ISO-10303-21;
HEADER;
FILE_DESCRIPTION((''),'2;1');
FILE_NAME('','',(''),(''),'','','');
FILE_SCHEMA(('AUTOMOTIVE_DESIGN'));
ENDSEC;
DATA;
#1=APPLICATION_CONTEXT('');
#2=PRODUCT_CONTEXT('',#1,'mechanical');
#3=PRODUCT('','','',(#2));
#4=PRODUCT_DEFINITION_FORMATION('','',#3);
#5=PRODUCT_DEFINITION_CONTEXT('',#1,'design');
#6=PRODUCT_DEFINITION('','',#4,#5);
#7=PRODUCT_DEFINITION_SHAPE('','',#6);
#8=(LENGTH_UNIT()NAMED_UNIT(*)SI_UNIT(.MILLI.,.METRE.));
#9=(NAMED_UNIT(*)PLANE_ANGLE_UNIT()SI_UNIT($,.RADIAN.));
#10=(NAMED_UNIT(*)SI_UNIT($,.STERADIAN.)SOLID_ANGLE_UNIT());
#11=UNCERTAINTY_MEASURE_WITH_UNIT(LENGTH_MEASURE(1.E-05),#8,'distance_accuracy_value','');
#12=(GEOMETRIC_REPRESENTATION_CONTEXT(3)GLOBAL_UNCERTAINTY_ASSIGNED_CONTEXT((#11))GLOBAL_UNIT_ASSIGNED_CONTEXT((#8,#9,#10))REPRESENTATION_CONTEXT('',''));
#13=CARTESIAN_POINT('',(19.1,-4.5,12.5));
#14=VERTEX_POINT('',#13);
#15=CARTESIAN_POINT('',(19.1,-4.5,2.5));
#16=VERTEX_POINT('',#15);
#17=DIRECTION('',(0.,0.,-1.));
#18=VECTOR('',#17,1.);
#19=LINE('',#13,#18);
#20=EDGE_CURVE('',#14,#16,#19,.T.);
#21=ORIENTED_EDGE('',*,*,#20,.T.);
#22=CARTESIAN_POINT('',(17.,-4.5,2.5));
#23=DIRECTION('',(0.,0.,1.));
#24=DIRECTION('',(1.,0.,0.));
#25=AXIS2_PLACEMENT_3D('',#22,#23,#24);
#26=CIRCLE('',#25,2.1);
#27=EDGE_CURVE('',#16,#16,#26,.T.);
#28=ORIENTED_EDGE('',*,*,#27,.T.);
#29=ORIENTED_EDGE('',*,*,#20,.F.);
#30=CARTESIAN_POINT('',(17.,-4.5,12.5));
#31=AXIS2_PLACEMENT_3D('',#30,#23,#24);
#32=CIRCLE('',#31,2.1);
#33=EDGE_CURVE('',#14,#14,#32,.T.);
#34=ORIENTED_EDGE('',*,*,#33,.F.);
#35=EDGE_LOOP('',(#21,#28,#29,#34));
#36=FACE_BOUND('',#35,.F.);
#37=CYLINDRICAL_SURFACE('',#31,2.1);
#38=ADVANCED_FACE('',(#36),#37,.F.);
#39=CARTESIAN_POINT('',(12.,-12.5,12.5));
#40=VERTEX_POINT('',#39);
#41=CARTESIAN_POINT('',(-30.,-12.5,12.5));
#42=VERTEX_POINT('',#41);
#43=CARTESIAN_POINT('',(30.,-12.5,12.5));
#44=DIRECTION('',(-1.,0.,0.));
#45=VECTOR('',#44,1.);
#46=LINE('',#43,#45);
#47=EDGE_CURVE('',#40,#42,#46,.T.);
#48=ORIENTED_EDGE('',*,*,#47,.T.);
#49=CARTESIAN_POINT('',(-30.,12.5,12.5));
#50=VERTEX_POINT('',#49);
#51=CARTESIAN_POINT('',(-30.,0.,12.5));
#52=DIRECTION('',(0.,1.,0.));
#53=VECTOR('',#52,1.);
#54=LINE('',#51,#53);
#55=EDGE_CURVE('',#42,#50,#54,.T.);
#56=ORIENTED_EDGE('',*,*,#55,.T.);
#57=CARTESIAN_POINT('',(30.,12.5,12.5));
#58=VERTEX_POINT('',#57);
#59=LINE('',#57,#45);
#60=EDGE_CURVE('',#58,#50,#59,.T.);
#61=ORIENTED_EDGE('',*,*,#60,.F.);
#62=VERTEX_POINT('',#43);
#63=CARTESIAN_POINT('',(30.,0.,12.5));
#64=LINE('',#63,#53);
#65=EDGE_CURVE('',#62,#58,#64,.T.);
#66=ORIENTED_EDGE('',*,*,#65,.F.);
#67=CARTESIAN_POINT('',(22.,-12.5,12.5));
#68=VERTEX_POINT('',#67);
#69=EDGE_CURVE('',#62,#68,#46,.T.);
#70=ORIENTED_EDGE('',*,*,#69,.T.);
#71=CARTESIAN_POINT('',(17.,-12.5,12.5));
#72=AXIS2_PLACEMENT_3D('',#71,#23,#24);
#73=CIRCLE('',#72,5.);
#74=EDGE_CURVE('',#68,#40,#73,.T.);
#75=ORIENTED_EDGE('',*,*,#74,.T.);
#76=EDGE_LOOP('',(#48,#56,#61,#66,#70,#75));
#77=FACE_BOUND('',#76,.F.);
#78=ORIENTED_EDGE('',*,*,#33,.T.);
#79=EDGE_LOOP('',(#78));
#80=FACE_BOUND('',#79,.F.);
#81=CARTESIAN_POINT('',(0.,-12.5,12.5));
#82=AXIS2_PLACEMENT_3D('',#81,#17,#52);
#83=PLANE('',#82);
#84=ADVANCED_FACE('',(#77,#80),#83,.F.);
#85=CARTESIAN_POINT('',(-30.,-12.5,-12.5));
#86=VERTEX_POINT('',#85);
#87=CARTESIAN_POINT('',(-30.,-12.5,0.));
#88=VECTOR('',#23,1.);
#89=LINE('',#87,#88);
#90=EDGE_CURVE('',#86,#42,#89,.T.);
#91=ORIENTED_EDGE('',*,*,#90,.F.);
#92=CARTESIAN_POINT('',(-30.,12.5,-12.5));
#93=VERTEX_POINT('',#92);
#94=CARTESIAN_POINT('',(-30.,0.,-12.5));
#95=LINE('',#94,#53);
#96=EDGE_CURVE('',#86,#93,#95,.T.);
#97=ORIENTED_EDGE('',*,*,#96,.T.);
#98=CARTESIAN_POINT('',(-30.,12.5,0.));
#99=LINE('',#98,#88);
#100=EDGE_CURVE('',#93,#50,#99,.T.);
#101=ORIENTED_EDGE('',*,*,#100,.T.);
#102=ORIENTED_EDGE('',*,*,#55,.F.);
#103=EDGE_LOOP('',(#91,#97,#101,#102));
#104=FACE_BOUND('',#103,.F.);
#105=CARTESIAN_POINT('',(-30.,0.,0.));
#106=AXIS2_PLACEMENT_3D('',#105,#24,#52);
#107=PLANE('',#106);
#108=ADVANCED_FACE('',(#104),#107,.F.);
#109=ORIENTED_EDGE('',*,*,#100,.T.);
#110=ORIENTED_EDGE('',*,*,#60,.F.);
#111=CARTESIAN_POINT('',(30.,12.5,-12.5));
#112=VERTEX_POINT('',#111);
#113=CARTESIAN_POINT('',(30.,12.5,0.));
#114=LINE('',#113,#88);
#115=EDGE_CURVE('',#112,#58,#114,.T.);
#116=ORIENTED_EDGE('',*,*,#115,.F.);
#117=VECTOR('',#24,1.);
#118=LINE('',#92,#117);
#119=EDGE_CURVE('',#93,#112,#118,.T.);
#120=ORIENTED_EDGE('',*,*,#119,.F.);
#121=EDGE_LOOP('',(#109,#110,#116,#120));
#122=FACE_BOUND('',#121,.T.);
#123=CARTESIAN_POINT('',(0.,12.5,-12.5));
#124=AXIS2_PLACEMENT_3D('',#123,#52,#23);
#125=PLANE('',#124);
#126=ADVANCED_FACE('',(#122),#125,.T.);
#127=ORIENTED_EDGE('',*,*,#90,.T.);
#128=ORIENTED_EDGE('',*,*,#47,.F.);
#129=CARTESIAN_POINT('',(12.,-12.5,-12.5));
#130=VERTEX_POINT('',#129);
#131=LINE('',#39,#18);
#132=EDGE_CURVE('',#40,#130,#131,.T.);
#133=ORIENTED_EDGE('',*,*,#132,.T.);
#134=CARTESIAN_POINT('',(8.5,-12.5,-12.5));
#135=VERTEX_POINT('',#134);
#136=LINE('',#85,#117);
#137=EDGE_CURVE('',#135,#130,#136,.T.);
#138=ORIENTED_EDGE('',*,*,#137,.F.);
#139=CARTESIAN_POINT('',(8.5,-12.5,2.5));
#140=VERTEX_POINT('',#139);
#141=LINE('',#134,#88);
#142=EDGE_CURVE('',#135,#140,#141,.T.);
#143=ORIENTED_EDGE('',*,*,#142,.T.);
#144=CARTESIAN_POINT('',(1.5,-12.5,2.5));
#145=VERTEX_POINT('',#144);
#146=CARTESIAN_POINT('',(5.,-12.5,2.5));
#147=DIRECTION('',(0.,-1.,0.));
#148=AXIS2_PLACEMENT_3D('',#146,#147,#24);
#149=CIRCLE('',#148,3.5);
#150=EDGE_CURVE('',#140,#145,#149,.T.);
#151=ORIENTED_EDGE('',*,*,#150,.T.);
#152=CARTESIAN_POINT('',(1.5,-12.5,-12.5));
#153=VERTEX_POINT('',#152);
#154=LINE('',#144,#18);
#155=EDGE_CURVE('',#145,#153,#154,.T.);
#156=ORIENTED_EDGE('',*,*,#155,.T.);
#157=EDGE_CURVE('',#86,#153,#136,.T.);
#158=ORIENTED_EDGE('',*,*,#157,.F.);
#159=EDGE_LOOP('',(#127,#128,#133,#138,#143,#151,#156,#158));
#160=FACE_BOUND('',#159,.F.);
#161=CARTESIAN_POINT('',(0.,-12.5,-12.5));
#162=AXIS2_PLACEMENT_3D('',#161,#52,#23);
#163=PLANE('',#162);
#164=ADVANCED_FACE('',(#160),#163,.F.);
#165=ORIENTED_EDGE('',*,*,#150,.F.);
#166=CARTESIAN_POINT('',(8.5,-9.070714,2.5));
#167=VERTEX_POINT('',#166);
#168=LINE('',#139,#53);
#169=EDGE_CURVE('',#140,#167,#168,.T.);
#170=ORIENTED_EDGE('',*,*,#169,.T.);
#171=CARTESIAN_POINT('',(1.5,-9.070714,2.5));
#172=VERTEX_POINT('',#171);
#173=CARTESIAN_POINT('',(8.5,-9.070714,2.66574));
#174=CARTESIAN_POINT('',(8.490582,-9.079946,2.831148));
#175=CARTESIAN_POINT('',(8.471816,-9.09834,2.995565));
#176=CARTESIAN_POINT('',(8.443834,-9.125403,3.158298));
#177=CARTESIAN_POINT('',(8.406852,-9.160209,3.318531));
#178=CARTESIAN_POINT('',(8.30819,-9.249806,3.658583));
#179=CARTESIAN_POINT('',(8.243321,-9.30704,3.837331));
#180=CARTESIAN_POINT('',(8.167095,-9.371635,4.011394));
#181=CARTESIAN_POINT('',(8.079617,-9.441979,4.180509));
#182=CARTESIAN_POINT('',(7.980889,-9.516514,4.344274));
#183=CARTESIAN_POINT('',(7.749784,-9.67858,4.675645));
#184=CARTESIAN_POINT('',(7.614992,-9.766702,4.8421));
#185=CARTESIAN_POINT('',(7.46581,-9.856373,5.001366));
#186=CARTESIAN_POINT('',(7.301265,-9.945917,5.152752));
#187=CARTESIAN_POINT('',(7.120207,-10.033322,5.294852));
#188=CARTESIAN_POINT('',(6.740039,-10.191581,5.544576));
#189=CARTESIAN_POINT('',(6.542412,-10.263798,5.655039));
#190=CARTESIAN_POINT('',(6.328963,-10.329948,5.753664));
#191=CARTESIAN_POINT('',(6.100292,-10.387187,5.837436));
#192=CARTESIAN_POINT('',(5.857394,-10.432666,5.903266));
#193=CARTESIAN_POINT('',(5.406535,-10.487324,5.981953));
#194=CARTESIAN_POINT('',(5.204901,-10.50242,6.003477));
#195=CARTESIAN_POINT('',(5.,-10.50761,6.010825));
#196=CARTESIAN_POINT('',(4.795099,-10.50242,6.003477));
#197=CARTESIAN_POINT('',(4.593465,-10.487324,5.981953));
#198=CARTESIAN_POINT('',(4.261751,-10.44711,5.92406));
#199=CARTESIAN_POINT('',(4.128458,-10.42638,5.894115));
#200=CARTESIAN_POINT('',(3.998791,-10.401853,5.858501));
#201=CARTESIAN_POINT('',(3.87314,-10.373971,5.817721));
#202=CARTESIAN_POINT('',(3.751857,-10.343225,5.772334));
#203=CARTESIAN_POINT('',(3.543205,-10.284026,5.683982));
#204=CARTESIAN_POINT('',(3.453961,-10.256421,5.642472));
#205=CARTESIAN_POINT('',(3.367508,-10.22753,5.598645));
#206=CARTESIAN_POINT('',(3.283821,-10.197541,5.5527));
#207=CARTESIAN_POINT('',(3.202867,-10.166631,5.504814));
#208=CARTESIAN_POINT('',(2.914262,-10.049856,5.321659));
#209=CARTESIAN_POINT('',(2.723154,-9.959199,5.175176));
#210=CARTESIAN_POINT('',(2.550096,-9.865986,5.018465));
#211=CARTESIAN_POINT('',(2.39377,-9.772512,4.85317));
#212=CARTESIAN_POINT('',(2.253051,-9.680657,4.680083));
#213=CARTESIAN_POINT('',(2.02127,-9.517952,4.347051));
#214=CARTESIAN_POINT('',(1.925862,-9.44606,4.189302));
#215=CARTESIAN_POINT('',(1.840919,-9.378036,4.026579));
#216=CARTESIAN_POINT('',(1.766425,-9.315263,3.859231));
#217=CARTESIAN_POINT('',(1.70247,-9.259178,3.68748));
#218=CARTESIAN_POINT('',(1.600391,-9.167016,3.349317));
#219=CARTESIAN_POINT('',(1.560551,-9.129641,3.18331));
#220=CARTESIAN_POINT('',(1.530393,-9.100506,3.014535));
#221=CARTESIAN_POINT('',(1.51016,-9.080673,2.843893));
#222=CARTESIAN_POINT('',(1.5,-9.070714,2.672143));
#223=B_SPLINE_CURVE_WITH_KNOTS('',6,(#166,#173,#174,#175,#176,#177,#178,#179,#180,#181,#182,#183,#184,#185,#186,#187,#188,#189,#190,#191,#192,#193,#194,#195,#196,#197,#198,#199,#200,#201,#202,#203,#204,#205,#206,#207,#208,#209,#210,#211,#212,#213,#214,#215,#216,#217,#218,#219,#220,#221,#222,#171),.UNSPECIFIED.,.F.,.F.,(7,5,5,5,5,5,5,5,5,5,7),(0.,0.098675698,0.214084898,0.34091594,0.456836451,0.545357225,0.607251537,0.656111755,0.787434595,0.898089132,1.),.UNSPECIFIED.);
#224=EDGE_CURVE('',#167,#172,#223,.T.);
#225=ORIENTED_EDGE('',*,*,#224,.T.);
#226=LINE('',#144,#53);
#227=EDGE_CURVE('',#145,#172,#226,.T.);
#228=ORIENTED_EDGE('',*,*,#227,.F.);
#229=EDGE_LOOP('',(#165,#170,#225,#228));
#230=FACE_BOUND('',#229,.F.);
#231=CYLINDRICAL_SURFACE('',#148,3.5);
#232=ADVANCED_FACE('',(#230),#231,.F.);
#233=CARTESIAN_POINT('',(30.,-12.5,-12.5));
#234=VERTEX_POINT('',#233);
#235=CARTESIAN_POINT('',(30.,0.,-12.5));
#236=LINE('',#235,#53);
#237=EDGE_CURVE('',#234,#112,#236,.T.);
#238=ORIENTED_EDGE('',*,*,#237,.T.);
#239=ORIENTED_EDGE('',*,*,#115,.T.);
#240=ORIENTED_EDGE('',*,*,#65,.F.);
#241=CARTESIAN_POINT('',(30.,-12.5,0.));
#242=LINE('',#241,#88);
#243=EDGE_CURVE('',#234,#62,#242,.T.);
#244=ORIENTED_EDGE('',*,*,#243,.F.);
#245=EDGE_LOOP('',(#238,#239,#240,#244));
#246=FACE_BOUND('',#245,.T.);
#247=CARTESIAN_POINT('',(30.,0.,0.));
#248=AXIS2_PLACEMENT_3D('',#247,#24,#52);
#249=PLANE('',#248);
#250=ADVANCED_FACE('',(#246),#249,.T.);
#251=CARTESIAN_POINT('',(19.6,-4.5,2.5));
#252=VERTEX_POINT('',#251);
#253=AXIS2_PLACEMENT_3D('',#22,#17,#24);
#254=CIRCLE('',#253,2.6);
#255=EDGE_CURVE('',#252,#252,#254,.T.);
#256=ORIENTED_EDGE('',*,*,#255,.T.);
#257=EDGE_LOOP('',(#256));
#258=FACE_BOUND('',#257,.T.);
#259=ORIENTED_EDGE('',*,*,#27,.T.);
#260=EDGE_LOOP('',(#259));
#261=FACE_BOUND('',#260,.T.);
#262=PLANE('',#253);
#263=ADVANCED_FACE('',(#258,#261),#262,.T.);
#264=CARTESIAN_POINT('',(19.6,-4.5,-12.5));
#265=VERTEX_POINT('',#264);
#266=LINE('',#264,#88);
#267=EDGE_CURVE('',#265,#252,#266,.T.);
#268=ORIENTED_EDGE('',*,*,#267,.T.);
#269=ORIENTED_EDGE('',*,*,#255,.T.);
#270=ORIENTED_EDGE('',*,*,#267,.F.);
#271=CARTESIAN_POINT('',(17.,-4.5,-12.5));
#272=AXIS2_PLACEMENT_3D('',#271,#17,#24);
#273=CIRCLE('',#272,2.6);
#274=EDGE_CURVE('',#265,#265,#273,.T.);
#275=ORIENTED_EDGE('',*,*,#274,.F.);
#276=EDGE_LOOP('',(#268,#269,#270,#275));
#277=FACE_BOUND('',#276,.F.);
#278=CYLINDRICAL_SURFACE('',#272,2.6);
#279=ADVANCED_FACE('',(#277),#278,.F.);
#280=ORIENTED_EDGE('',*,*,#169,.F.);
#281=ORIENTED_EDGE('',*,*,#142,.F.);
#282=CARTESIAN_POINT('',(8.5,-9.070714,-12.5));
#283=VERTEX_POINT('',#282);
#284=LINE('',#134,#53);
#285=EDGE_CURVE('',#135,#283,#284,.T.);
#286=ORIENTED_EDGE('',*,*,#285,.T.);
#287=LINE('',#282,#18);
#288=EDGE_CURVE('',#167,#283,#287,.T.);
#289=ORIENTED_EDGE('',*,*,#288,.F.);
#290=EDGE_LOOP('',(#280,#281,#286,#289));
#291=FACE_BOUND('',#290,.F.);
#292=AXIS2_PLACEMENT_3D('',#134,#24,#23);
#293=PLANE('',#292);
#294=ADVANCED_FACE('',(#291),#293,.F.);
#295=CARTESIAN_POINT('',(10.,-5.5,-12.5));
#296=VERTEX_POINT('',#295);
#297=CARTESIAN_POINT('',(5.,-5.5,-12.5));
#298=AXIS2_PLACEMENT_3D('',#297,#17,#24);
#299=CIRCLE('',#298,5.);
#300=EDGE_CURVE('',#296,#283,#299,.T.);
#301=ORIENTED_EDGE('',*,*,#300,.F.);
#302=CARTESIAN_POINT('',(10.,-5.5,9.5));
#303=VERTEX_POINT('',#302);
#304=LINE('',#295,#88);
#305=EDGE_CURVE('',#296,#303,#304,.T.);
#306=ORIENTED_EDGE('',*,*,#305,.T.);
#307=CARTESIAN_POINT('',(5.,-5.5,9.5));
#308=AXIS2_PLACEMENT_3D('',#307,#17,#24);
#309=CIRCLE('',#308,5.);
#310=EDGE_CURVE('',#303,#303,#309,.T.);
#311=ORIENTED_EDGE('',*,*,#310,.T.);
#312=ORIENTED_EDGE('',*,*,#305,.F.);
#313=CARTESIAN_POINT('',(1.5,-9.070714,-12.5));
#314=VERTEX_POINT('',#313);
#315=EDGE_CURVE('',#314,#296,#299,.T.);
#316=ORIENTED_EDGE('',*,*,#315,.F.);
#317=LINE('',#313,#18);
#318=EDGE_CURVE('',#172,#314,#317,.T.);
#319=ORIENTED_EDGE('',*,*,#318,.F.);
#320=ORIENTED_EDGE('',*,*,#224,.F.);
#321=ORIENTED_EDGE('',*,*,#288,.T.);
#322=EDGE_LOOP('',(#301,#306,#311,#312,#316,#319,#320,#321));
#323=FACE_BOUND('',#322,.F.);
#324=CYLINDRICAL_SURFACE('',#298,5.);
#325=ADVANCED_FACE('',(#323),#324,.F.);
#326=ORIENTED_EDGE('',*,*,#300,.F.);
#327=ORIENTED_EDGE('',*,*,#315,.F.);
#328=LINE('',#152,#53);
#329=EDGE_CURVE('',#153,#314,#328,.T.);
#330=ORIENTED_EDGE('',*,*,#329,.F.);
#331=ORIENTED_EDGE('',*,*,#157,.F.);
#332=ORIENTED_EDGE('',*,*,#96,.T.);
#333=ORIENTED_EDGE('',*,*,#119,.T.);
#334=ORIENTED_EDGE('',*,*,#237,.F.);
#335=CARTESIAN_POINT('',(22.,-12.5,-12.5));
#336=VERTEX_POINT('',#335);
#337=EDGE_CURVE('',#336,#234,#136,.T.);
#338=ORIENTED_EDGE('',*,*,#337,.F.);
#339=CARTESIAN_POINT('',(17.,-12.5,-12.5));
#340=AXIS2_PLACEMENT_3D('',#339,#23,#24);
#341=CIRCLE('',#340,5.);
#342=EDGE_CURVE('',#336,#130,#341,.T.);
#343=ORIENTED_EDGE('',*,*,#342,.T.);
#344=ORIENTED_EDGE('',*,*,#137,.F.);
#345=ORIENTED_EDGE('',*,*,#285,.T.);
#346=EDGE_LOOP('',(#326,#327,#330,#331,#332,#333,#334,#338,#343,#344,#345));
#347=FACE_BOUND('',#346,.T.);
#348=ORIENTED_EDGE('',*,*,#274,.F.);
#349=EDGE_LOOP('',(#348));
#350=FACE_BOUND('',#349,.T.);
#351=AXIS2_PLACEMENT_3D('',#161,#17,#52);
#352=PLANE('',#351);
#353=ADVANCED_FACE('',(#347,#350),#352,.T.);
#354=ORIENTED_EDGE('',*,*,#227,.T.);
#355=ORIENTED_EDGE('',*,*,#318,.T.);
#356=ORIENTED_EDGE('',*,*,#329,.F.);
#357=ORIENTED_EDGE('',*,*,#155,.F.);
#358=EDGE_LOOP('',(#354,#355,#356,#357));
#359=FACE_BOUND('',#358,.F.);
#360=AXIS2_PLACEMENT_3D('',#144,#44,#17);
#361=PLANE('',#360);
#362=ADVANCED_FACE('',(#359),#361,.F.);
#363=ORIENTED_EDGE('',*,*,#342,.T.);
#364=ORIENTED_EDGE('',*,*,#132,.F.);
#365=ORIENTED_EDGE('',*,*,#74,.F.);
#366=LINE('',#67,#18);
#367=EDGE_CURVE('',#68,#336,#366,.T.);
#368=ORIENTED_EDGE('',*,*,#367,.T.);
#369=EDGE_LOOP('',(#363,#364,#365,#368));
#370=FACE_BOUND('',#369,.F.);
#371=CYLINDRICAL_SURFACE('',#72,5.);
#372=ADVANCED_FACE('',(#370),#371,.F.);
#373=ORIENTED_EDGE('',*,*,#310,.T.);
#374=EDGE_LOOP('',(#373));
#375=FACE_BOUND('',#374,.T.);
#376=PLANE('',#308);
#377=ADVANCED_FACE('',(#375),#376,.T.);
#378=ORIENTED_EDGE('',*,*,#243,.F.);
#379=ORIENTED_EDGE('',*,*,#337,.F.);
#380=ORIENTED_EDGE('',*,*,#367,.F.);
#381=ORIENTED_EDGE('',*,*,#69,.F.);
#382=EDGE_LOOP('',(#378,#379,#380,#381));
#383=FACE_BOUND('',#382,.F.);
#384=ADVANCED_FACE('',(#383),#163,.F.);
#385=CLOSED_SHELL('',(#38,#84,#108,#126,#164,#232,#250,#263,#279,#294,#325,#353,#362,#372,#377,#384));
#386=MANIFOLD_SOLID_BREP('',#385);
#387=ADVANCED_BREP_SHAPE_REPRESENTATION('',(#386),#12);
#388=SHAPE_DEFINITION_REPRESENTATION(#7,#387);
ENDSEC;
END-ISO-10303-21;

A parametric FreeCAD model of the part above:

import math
import FreeCAD as App
import Part
import Sketcher

doc = App.newDocument("Part")
params = doc.addObject("Spreadsheet::Sheet", "Params")
for row, (alias, value) in enumerate([
    ("sketch1_width", "25 mm"),
    ("pad1_length", "60 mm"),
    ("sketch2_radius", "5 mm"),
    ("sketch3_diameter", "4.2 mm"),
    ("sketch4_diameter", "10 mm"),
    ("pocket3_length", "22 mm"),
    ("sketch5_radius", "3.5 mm"),
    ("sketch5_height", "15 mm"),
    ("pocket4_length", "7 mm"),
    ("sketch6_diameter", "5.2 mm"),
    ("pocket5_length", "15 mm"),
], start=1):
    params.set(f"A{row}", alias)
    params.set(f"B{row}", "=" + value)
    params.setAlias(f"B{row}", alias)

body = doc.addObject("PartDesign::Body", "Body")

sketch1 = body.newObject("Sketcher::SketchObject", "Sketch")
sketch1.AttachmentSupport = (doc.getObject("YZ_Plane"), [""])
sketch1.MapMode = "FlatFace"
sketch1.addGeometry(Part.LineSegment(App.Vector(-12, 12, 0), App.Vector(-12, -12, 0)), False)
sketch1.addGeometry(Part.LineSegment(App.Vector(-12, -12, 0), App.Vector(12, -12, 0)), False)
sketch1.addGeometry(Part.LineSegment(App.Vector(12, -12, 0), App.Vector(12, 12, 0)), False)
sketch1.addGeometry(Part.LineSegment(App.Vector(12, 12, 0), App.Vector(-12, 12, 0)), False)
sketch1.addConstraint(Sketcher.Constraint("Coincident", 0, 2, 1, 1))
sketch1.addConstraint(Sketcher.Constraint("Coincident", 1, 2, 2, 1))
sketch1.addConstraint(Sketcher.Constraint("Coincident", 2, 2, 3, 1))
sketch1.addConstraint(Sketcher.Constraint("Coincident", 3, 2, 0, 1))
sketch1.addConstraint(Sketcher.Constraint("Vertical", 0))
sketch1.addConstraint(Sketcher.Constraint("Horizontal", 1))
sketch1.addConstraint(Sketcher.Constraint("Vertical", 2))
sketch1.addConstraint(Sketcher.Constraint("Horizontal", 3))
sketch1.addConstraint(Sketcher.Constraint("Symmetric", 0, 2, 2, 2, -1, 1))
sketch1.addConstraint(Sketcher.Constraint("Equal", 3, 0))
sketch1.addConstraint(Sketcher.Constraint("DistanceX", 1, 1, 1, 2, 25.0))
sketch1.setExpression("Constraints[10]", "Params.sketch1_width")
pad1 = body.newObject("PartDesign::Pad", "Pad")
pad1.Profile = sketch1
pad1.setExpression("Length", "Params.pad1_length")
pad1.Midplane = True

sketch2 = body.newObject("Sketcher::SketchObject", "Sketch001")
sketch2.AttachmentSupport = (doc.getObject("XY_Plane"), [""])
sketch2.MapMode = "FlatFace"
sketch2.AttachmentOffset = App.Placement(App.Vector(0, 0, 12.5), App.Rotation())
sketch2.addGeometry(Part.LineSegment(App.Vector(12, -12, 0), App.Vector(22, -12, 0)), False)
sketch2.addGeometry(Part.ArcOfCircle(Part.Circle(App.Vector(17, -12, 0), App.Vector(0, 0, 1), 5), math.radians(0), math.radians(180)), False)
sketch2.addConstraint(Sketcher.Constraint("Coincident", 0, 1, 1, 2))
sketch2.addConstraint(Sketcher.Constraint("Coincident", 1, 1, 0, 2))
sketch2.addConstraint(Sketcher.Constraint("Horizontal", 0))
sketch2.addConstraint(Sketcher.Constraint("Horizontal", 1, 3, 0, 1))
sketch2.addConstraint(Sketcher.Constraint("Radius", 1, 5.0))
sketch2.addConstraint(Sketcher.Constraint("DistanceX", -1, 1, 1, 3, 17.0))
sketch2.addConstraint(Sketcher.Constraint("DistanceY", 1, 3, -1, 1, 12.5))
sketch2.setExpression("Constraints[4]", "Params.sketch2_radius")
pocket1 = body.newObject("PartDesign::Pocket", "Pocket")
pocket1.Profile = sketch2
pocket1.Type = "ThroughAll"

sketch3 = body.newObject("Sketcher::SketchObject", "Sketch002")
sketch3.AttachmentSupport = (doc.getObject("XY_Plane"), [""])
sketch3.MapMode = "FlatFace"
sketch3.AttachmentOffset = App.Placement(App.Vector(0, 0, 12.5), App.Rotation())
sketch3.addGeometry(Part.Circle(App.Vector(17, -4.5, 0), App.Vector(0, 0, 1), 2.1), False)
sketch3.addConstraint(Sketcher.Constraint("Diameter", 0, 4.2))
sketch3.addConstraint(Sketcher.Constraint("DistanceX", -1, 1, 0, 3, 17.0))
sketch3.addConstraint(Sketcher.Constraint("DistanceY", 0, 3, -1, 1, 4.5))
sketch3.setExpression("Constraints[0]", "Params.sketch3_diameter")
pocket2 = body.newObject("PartDesign::Pocket", "Pocket001")
pocket2.Profile = sketch3
pocket2.Type = "ThroughAll"

sketch4 = body.newObject("Sketcher::SketchObject", "Sketch003")
sketch4.AttachmentSupport = (doc.getObject("XY_Plane"), [""])
sketch4.MapMode = "FlatFace"
sketch4.AttachmentOffset = App.Placement(App.Vector(0, 0, -12.5), App.Rotation())
sketch4.addGeometry(Part.Circle(App.Vector(5, -6, 0), App.Vector(0, 0, 1), 5), False)
sketch4.addConstraint(Sketcher.Constraint("Diameter", 0, 10.0))
sketch4.addConstraint(Sketcher.Constraint("DistanceX", -1, 1, 0, 3, 5.0))
sketch4.addConstraint(Sketcher.Constraint("DistanceY", 0, 3, -1, 1, 5.5))
sketch4.setExpression("Constraints[0]", "Params.sketch4_diameter")
pocket3 = body.newObject("PartDesign::Pocket", "Pocket002")
pocket3.Profile = sketch4
pocket3.setExpression("Length", "Params.pocket3_length")
pocket3.Reversed = True

sketch5 = body.newObject("Sketcher::SketchObject", "Sketch004")
sketch5.AttachmentSupport = (doc.getObject("XZ_Plane"), [""])
sketch5.MapMode = "FlatFace"
sketch5.AttachmentOffset = App.Placement(App.Vector(0, 0, 12.5), App.Rotation())
sketch5.addGeometry(Part.LineSegment(App.Vector(1.5, -12.5, 0), App.Vector(8.5, -12.5, 0)), False)
sketch5.addGeometry(Part.LineSegment(App.Vector(8.5, -12.5, 0), App.Vector(8.5, 2.5, 0)), False)
sketch5.addGeometry(Part.ArcOfCircle(Part.Circle(App.Vector(5, 2.5, 0), App.Vector(0, 0, 1), 3.5), math.radians(0), math.radians(180)), False)
sketch5.addGeometry(Part.LineSegment(App.Vector(1.5, 2.5, 0), App.Vector(1.5, -12.5, 0)), False)
sketch5.addConstraint(Sketcher.Constraint("Coincident", 0, 2, 1, 1))
sketch5.addConstraint(Sketcher.Constraint("Tangent", 1, 2, 2, 1))
sketch5.addConstraint(Sketcher.Constraint("Tangent", 2, 2, 3, 1))
sketch5.addConstraint(Sketcher.Constraint("Coincident", 3, 2, 0, 1))
sketch5.addConstraint(Sketcher.Constraint("Horizontal", 0))
sketch5.addConstraint(Sketcher.Constraint("Vertical", 1))
sketch5.addConstraint(Sketcher.Constraint("Vertical", 3))
sketch5.addConstraint(Sketcher.Constraint("Radius", 2, 3.5))
sketch5.addConstraint(Sketcher.Constraint("DistanceY", 1, 1, 1, 2, 15.0))
sketch5.addConstraint(Sketcher.Constraint("DistanceX", -1, 1, 2, 3, 5.0))
sketch5.addConstraint(Sketcher.Constraint("DistanceY", -1, 1, 2, 3, 2.5))
sketch5.setExpression("Constraints[7]", "Params.sketch5_radius")
sketch5.setExpression("Constraints[8]", "Params.sketch5_height")
pocket4 = body.newObject("PartDesign::Pocket", "Pocket003")
pocket4.Profile = sketch5
pocket4.setExpression("Length", "Params.pocket4_length")

sketch6 = body.newObject("Sketcher::SketchObject", "Sketch005")
sketch6.AttachmentSupport = (doc.getObject("XY_Plane"), [""])
sketch6.MapMode = "FlatFace"
sketch6.AttachmentOffset = App.Placement(App.Vector(0, 0, -12.5), App.Rotation())
sketch6.addGeometry(Part.Circle(App.Vector(17, -4.5, 0), App.Vector(0, 0, 1), 2.6), False)
sketch6.addConstraint(Sketcher.Constraint("Diameter", 0, 5.2))
sketch6.addConstraint(Sketcher.Constraint("DistanceX", -1, 1, 0, 3, 17.0))
sketch6.addConstraint(Sketcher.Constraint("DistanceY", 0, 3, -1, 1, 4.5))
sketch6.setExpression("Constraints[0]", "Params.sketch6_diameter")
pocket5 = body.newObject("PartDesign::Pocket", "Pocket004")
pocket5.Profile = sketch6
pocket5.setExpression("Length", "Params.pocket5_length")
pocket5.Reversed = True
body2 = doc.addObject("PartDesign::Body", "Body001")
doc.recompute()

body2.BaseFeature = body
doc.recompute()
body.Visibility = False

doc.recompute()
